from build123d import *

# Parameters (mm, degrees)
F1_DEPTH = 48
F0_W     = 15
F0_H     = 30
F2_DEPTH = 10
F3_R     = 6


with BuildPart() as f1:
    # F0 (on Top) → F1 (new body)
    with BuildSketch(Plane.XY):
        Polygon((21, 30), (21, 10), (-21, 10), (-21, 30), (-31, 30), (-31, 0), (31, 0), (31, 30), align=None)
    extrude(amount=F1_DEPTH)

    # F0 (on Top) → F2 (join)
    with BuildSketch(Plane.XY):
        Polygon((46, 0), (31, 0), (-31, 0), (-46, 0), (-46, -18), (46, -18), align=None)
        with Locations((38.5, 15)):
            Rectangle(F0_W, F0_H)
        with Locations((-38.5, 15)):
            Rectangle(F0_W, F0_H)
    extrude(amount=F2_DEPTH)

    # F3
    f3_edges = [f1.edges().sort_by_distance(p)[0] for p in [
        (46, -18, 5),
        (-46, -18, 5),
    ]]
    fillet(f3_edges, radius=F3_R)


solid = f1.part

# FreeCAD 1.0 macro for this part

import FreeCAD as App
import Part
import Sketcher

V = App.Vector
Q = App.Units.Quantity


def edges_at(feature, points):
    """Names of the edges that pass closest to the given points."""
    edges = feature.Shape.Edges
    near = lambda p: min(range(len(edges)), key=lambda i: edges[i].distToShape(Part.Vertex(*p))[0])
    return sorted({f"Edge{near(p) + 1}" for p in points})

doc = App.newDocument("Part")
params = doc.addObject("Spreadsheet::Sheet", "Params")
for row, (alias, value) in enumerate([
    ("sketch1_width", "42 mm"),
    ("sketch1_width2", "10 mm"),
    ("sketch1_height", "20 mm"),
    ("sketch1_height2", "30 mm"),
    ("pad1_length", "48 mm"),
    ("sketch2_width", "62 mm"),
    ("sketch2_width2", "15 mm"),
    ("sketch2_height", "30 mm"),
    ("sketch2_height2", "48 mm"),
    ("pad2_length", "10 mm"),
    ("fillet_radius", "6 mm"),
], start=1):
    params.set(f"A{row}", alias)
    params.set(f"B{row}", "=" + value)
    params.setAlias(f"B{row}", alias)

body = doc.addObject("PartDesign::Body", "Body")

sketch1 = body.newObject("Sketcher::SketchObject", "Sketch")
sketch1.AttachmentSupport = (doc.getObject("XY_Plane"), [""])
sketch1.MapMode = "FlatFace"
sketch1.addGeometry(Part.LineSegment(V(21, 30, 0), V(21, 10, 0)), False)
sketch1.addGeometry(Part.LineSegment(V(21, 10, 0), V(-21, 10, 0)), False)
sketch1.addGeometry(Part.LineSegment(V(-21, 10, 0), V(-21, 30, 0)), False)
sketch1.addGeometry(Part.LineSegment(V(-21, 30, 0), V(-31, 30, 0)), False)
sketch1.addGeometry(Part.LineSegment(V(-31, 30, 0), V(-31, 0, 0)), False)
sketch1.addGeometry(Part.LineSegment(V(-31, 0, 0), V(31, 0, 0)), False)
sketch1.addGeometry(Part.LineSegment(V(31, 0, 0), V(31, 30, 0)), False)
sketch1.addGeometry(Part.LineSegment(V(31, 30, 0), V(21, 30, 0)), False)
sketch1.addConstraint(Sketcher.Constraint("Coincident", 0, 2, 1, 1))
sketch1.addConstraint(Sketcher.Constraint("Coincident", 1, 2, 2, 1))
sketch1.addConstraint(Sketcher.Constraint("Coincident", 2, 2, 3, 1))
sketch1.addConstraint(Sketcher.Constraint("Coincident", 3, 2, 4, 1))
sketch1.addConstraint(Sketcher.Constraint("Coincident", 4, 2, 5, 1))
sketch1.addConstraint(Sketcher.Constraint("Coincident", 5, 2, 6, 1))
sketch1.addConstraint(Sketcher.Constraint("Coincident", 6, 2, 7, 1))
sketch1.addConstraint(Sketcher.Constraint("Coincident", 7, 2, 0, 1))
sketch1.addConstraint(Sketcher.Constraint("Vertical", 0))
sketch1.addConstraint(Sketcher.Constraint("Horizontal", 1))
sketch1.addConstraint(Sketcher.Constraint("Vertical", 2))
sketch1.addConstraint(Sketcher.Constraint("Horizontal", 3))
sketch1.addConstraint(Sketcher.Constraint("Vertical", 4))
sketch1.addConstraint(Sketcher.Constraint("Horizontal", 5))
sketch1.addConstraint(Sketcher.Constraint("Vertical", 6))
sketch1.addConstraint(Sketcher.Constraint("Horizontal", 7))
sketch1.addConstraint(Sketcher.Constraint("Symmetric", 4, 2, 5, 2, -1, 1))
sketch1.addConstraint(Sketcher.Constraint("Symmetric", 2, 2, 7, 2, -2))
sketch1.addConstraint(Sketcher.Constraint("DistanceX", 1, 2, 1, 1, Q("42 mm")))
sketch1.addConstraint(Sketcher.Constraint("DistanceX", 3, 2, 3, 1, Q("10 mm")))
sketch1.addConstraint(Sketcher.Constraint("DistanceY", 0, 2, 0, 1, Q("20 mm")))
sketch1.addConstraint(Sketcher.Constraint("DistanceY", 4, 2, 4, 1, Q("30 mm")))
sketch1.setExpression("Constraints[18]", "Params.sketch1_width")
sketch1.setExpression("Constraints[19]", "Params.sketch1_width2")
sketch1.setExpression("Constraints[20]", "Params.sketch1_height")
sketch1.setExpression("Constraints[21]", "Params.sketch1_height2")
pad1 = body.newObject("PartDesign::Pad", "Pad")
pad1.Profile = sketch1
pad1.setExpression("Length", "Params.pad1_length")

sketch2 = body.newObject("Sketcher::SketchObject", "Sketch001")
sketch2.AttachmentSupport = (doc.getObject("XY_Plane"), [""])
sketch2.MapMode = "FlatFace"
sketch2.addGeometry(Part.LineSegment(V(31, 0, 0), V(-31, 0, 0)), False)
sketch2.addGeometry(Part.LineSegment(V(-31, 0, 0), V(-31, 30, 0)), False)
sketch2.addGeometry(Part.LineSegment(V(-31, 30, 0), V(-46, 30, 0)), False)
sketch2.addGeometry(Part.LineSegment(V(-46, 30, 0), V(-46, -18, 0)), False)
sketch2.addGeometry(Part.LineSegment(V(-46, -18, 0), V(46, -18, 0)), False)
sketch2.addGeometry(Part.LineSegment(V(46, -18, 0), V(46, 30, 0)), False)
sketch2.addGeometry(Part.LineSegment(V(46, 30, 0), V(31, 30, 0)), False)
sketch2.addGeometry(Part.LineSegment(V(31, 30, 0), V(31, 0, 0)), False)
sketch2.addConstraint(Sketcher.Constraint("Coincident", 0, 2, 1, 1))
sketch2.addConstraint(Sketcher.Constraint("Coincident", 1, 2, 2, 1))
sketch2.addConstraint(Sketcher.Constraint("Coincident", 2, 2, 3, 1))
sketch2.addConstraint(Sketcher.Constraint("Coincident", 3, 2, 4, 1))
sketch2.addConstraint(Sketcher.Constraint("Coincident", 4, 2, 5, 1))
sketch2.addConstraint(Sketcher.Constraint("Coincident", 5, 2, 6, 1))
sketch2.addConstraint(Sketcher.Constraint("Coincident", 6, 2, 7, 1))
sketch2.addConstraint(Sketcher.Constraint("Coincident", 7, 2, 0, 1))
sketch2.addConstraint(Sketcher.Constraint("Horizontal", 0))
sketch2.addConstraint(Sketcher.Constraint("Vertical", 1))
sketch2.addConstraint(Sketcher.Constraint("Horizontal", 2))
sketch2.addConstraint(Sketcher.Constraint("Vertical", 3))
sketch2.addConstraint(Sketcher.Constraint("Horizontal", 4))
sketch2.addConstraint(Sketcher.Constraint("Vertical", 5))
sketch2.addConstraint(Sketcher.Constraint("Horizontal", 6))
sketch2.addConstraint(Sketcher.Constraint("Vertical", 7))
sketch2.addConstraint(Sketcher.Constraint("Symmetric", 0, 2, 7, 2, -1, 1))
sketch2.addConstraint(Sketcher.Constraint("Symmetric", 2, 2, 5, 2, -2))
sketch2.addConstraint(Sketcher.Constraint("DistanceX", 0, 2, 0, 1, Q("62 mm")))
sketch2.addConstraint(Sketcher.Constraint("DistanceX", 2, 2, 2, 1, Q("15 mm")))
sketch2.addConstraint(Sketcher.Constraint("DistanceY", 1, 1, 1, 2, Q("30 mm")))
sketch2.addConstraint(Sketcher.Constraint("DistanceY", 3, 2, 3, 1, Q("48 mm")))
sketch2.setExpression("Constraints[18]", "Params.sketch2_width")
sketch2.setExpression("Constraints[19]", "Params.sketch2_width2")
sketch2.setExpression("Constraints[20]", "Params.sketch2_height")
sketch2.setExpression("Constraints[21]", "Params.sketch2_height2")
pad2 = body.newObject("PartDesign::Pad", "Pad001")
pad2.Profile = sketch2
pad2.setExpression("Length", "Params.pad2_length")
doc.recompute()

fillet = body.newObject("PartDesign::Fillet", "Fillet")
fillet.Base = (pad2, edges_at(pad2, [(46, -18, 5), (-46, -18, 5)]))
fillet.setExpression("Radius", "Params.fillet_radius")

doc.recompute()
